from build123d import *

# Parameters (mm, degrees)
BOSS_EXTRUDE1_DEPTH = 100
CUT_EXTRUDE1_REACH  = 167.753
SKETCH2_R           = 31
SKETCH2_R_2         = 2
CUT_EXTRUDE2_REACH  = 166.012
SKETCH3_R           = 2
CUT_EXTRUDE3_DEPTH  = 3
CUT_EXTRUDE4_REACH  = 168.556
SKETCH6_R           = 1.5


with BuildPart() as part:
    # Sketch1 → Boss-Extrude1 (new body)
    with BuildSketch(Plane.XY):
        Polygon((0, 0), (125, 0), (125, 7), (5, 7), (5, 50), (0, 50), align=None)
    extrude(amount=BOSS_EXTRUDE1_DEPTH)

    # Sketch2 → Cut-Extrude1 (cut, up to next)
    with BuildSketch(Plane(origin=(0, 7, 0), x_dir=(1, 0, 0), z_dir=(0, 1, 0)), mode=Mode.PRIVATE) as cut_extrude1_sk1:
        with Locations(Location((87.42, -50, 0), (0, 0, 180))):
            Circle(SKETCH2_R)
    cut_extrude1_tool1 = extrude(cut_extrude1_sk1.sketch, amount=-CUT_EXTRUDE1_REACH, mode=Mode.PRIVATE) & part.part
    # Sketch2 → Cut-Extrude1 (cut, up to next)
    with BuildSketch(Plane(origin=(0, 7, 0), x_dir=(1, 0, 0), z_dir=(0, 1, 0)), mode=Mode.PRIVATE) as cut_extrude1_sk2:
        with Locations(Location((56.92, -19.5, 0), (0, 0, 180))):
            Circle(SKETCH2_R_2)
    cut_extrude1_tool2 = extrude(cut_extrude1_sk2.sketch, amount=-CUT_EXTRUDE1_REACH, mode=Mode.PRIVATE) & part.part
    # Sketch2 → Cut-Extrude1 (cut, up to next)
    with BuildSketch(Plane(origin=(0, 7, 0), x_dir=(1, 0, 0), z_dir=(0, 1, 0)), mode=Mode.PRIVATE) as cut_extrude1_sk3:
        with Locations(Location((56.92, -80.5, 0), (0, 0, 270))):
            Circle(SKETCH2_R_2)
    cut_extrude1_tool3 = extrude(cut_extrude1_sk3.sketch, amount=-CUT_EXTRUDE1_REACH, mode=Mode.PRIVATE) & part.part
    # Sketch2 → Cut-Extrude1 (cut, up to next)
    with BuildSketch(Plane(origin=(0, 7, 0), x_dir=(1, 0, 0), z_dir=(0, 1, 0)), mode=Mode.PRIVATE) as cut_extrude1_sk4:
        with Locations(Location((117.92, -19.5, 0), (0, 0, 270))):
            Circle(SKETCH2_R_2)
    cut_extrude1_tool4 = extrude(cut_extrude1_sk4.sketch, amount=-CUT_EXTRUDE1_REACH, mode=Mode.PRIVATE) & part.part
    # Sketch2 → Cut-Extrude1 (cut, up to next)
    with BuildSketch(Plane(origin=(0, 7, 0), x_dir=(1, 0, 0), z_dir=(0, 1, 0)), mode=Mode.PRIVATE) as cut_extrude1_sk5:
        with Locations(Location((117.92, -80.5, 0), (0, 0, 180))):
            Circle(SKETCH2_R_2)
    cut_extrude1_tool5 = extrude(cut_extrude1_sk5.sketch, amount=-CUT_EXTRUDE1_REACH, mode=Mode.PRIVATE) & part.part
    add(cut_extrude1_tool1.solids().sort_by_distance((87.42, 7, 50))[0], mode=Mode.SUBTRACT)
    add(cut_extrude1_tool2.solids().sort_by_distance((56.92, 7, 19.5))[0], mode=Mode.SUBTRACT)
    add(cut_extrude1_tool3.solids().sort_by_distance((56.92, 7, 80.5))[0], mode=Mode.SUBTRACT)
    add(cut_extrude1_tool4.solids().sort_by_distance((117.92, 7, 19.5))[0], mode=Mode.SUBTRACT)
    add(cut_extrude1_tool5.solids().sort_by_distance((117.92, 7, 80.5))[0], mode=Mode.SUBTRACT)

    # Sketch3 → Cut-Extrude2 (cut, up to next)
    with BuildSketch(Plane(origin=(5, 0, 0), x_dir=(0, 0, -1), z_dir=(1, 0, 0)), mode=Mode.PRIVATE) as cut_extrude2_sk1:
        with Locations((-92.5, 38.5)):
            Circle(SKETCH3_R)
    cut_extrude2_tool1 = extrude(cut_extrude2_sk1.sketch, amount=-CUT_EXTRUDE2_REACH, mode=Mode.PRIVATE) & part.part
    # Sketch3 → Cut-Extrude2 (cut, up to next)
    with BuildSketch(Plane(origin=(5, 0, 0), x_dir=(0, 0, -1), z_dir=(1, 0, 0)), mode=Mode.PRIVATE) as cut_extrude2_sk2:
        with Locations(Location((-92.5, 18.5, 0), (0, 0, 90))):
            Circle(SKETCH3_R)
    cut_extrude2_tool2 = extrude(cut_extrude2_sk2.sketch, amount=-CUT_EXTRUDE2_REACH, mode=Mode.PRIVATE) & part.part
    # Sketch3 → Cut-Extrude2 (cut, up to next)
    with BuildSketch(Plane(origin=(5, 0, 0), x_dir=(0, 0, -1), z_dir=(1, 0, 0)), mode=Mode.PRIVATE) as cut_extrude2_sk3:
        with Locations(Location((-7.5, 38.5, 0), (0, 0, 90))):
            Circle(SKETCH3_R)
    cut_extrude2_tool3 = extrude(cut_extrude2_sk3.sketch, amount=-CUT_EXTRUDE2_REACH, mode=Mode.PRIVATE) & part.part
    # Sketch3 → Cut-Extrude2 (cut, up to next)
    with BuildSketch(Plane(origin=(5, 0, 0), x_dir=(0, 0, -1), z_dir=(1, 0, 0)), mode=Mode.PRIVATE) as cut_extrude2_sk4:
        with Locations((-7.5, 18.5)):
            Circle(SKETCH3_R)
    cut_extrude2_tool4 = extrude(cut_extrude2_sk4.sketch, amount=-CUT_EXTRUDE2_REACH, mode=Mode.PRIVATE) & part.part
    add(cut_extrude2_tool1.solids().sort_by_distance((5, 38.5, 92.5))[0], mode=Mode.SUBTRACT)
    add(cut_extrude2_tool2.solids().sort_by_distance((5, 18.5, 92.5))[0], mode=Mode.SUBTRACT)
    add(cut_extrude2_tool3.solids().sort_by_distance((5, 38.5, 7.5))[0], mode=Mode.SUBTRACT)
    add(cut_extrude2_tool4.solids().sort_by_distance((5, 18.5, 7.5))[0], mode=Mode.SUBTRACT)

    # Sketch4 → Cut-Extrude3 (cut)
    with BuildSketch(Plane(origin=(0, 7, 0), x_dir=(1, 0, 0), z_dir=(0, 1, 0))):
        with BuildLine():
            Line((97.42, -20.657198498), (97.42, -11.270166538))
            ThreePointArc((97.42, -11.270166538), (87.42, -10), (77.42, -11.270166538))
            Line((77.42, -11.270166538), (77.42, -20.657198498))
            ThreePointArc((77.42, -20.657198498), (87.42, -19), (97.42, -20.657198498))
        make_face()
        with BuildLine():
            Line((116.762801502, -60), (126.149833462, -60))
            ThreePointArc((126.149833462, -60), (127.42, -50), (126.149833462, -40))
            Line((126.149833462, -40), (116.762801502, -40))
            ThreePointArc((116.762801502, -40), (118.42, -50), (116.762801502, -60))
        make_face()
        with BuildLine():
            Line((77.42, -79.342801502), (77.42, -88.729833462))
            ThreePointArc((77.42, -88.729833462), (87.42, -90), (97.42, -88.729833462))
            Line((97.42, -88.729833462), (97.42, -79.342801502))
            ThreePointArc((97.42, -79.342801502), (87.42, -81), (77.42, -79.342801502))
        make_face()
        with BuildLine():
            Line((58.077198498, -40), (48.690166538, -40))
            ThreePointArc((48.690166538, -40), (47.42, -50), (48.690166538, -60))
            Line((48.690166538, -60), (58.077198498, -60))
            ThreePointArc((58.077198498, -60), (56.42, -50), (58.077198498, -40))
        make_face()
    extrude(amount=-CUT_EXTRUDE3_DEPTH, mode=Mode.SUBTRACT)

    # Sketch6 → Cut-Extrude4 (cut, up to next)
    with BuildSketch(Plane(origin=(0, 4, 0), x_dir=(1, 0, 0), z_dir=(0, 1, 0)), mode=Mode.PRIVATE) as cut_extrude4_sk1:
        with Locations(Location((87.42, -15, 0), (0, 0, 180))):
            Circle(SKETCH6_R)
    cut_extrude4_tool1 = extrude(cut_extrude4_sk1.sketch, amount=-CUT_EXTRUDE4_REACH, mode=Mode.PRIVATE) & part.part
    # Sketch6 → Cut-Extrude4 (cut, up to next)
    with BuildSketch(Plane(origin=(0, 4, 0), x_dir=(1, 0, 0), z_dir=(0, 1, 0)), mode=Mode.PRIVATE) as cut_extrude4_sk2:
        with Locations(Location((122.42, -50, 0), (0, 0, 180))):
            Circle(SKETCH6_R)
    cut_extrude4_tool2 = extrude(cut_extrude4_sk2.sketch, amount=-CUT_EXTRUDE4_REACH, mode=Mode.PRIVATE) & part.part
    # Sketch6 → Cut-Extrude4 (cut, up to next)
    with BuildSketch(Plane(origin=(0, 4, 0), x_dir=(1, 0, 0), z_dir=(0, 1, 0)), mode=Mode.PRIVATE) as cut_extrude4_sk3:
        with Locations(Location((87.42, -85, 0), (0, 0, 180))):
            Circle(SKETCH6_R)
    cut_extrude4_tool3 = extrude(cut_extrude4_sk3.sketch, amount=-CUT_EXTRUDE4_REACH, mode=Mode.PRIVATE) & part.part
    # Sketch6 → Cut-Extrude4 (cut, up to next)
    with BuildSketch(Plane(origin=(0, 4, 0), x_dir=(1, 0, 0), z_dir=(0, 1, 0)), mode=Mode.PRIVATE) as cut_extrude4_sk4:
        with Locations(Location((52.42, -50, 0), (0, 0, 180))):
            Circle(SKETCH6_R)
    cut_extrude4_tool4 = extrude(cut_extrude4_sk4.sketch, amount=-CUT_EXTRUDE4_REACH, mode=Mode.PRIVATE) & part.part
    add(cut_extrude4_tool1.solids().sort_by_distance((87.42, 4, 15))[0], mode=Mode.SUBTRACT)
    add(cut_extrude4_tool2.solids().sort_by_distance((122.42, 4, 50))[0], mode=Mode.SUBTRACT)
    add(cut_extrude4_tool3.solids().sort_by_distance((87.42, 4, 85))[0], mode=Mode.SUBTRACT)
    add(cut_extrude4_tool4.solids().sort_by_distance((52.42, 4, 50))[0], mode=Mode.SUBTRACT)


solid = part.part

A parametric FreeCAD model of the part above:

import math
import FreeCAD as App
import Part
import Sketcher
from FreeCAD import Vector
Q = App.Units.Quantity

doc = App.newDocument("Part")
body = doc.addObject("PartDesign::Body", "Body")

sketch1 = doc.addObject("Sketcher::SketchObject", "Sketch")
body.addObject(sketch1)
sketch1.AttachmentSupport = (doc.XY_Plane, [""])
sketch1.MapMode = "FlatFace"
sketch1.addGeometry([
    Part.LineSegment(Vector(0, 0, 0), Vector(125, 0, 0)),
    Part.LineSegment(Vector(125, 0, 0), Vector(125, 7, 0)),
    Part.LineSegment(Vector(125, 7, 0), Vector(5, 7, 0)),
    Part.LineSegment(Vector(5, 7, 0), Vector(5, 50, 0)),
    Part.LineSegment(Vector(5, 50, 0), Vector(0, 50, 0)),
    Part.LineSegment(Vector(0, 50, 0), Vector(0, 0, 0)),
], False)
sketch1.addConstraint([
    Sketcher.Constraint("Coincident", 0, 2, 1, 1),
    Sketcher.Constraint("Coincident", 1, 2, 2, 1),
    Sketcher.Constraint("Coincident", 2, 2, 3, 1),
    Sketcher.Constraint("Coincident", 3, 2, 4, 1),
    Sketcher.Constraint("Coincident", 4, 2, 5, 1),
    Sketcher.Constraint("Coincident", 5, 2, 0, 1),
    Sketcher.Constraint("Horizontal", 0),
    Sketcher.Constraint("Vertical", 1),
    Sketcher.Constraint("Horizontal", 2),
    Sketcher.Constraint("Vertical", 3),
    Sketcher.Constraint("Horizontal", 4),
    Sketcher.Constraint("Vertical", 5),
    Sketcher.Constraint("Coincident", 5, 2, -1, 1),
    Sketcher.Constraint("DistanceX", 0, 1, 0, 2, Q("125 mm")),
    Sketcher.Constraint("DistanceX", 2, 2, 2, 1, Q("120 mm")),
    Sketcher.Constraint("DistanceY", 1, 1, 1, 2, Q("7 mm")),
    Sketcher.Constraint("DistanceY", 3, 1, 3, 2, Q("43 mm")),
])
pad1 = doc.addObject("PartDesign::Pad", "Pad")
body.addObject(pad1)
pad1.Profile = sketch1
pad1.Length = 100

sketch2 = doc.addObject("Sketcher::SketchObject", "Sketch001")
body.addObject(sketch2)
sketch2.AttachmentSupport = (doc.XZ_Plane, [""])
sketch2.MapMode = "FlatFace"
sketch2.AttachmentOffset = App.Placement(Vector(0, 0, -7), App.Rotation())
sketch2.addGeometry(Part.Circle(Vector(87.42, 50, 0), Vector(0, 0, 1), 31), False)
sketch2.addConstraint([
    Sketcher.Constraint("Diameter", 0, Q("62 mm")),
    Sketcher.Constraint("DistanceY", -1, 1, 0, 3, Q("50 mm")),
    Sketcher.Constraint("DistanceX", -1, 1, 0, 3, Q("87.42 mm")),
])
pocket1 = doc.addObject("PartDesign::Pocket", "Pocket")
body.addObject(pocket1)
pocket1.Profile = sketch2
pocket1.Type = "UpToFirst"
pocket1.Reversed = True

sketch3 = doc.addObject("Sketcher::SketchObject", "Sketch002")
body.addObject(sketch3)
sketch3.AttachmentSupport = (doc.XZ_Plane, [""])
sketch3.MapMode = "FlatFace"
sketch3.AttachmentOffset = App.Placement(Vector(0, 0, -7), App.Rotation())
sketch3.addGeometry(Part.Circle(Vector(56.92, 19.5, 0), Vector(0, 0, 1), 2), False)
sketch3.addConstraint([
    Sketcher.Constraint("Diameter", 0, Q("4 mm")),
    Sketcher.Constraint("DistanceY", -1, 1, 0, 3, Q("19.5 mm")),
    Sketcher.Constraint("DistanceX", -1, 1, 0, 3, Q("56.92 mm")),
])
pocket2 = doc.addObject("PartDesign::Pocket", "Pocket001")
body.addObject(pocket2)
pocket2.Profile = sketch3
pocket2.Type = "UpToFirst"
pocket2.Reversed = True

sketch4 = doc.addObject("Sketcher::SketchObject", "Sketch003")
body.addObject(sketch4)
sketch4.AttachmentSupport = (doc.XZ_Plane, [""])
sketch4.MapMode = "FlatFace"
sketch4.AttachmentOffset = App.Placement(Vector(0, 0, -7), App.Rotation())
sketch4.addGeometry(Part.Circle(Vector(56.92, 80.5, 0), Vector(0, 0, 1), 2), False)
sketch4.addConstraint([
    Sketcher.Constraint("Diameter", 0, Q("4 mm")),
    Sketcher.Constraint("DistanceY", -1, 1, 0, 3, Q("80.5 mm")),
    Sketcher.Constraint("DistanceX", -1, 1, 0, 3, Q("56.92 mm")),
])
pocket3 = doc.addObject("PartDesign::Pocket", "Pocket002")
body.addObject(pocket3)
pocket3.Profile = sketch4
pocket3.Type = "UpToFirst"
pocket3.Reversed = True

sketch5 = doc.addObject("Sketcher::SketchObject", "Sketch004")
body.addObject(sketch5)
sketch5.AttachmentSupport = (doc.XZ_Plane, [""])
sketch5.MapMode = "FlatFace"
sketch5.AttachmentOffset = App.Placement(Vector(0, 0, -7), App.Rotation())
sketch5.addGeometry(Part.Circle(Vector(117.92, 19.5, 0), Vector(0, 0, 1), 2), False)
sketch5.addConstraint([
    Sketcher.Constraint("Diameter", 0, Q("4 mm")),
    Sketcher.Constraint("DistanceY", -1, 1, 0, 3, Q("19.5 mm")),
    Sketcher.Constraint("DistanceX", -1, 1, 0, 3, Q("117.92 mm")),
])
pocket4 = doc.addObject("PartDesign::Pocket", "Pocket003")
body.addObject(pocket4)
pocket4.Profile = sketch5
pocket4.Type = "UpToFirst"
pocket4.Reversed = True

sketch6 = doc.addObject("Sketcher::SketchObject", "Sketch005")
body.addObject(sketch6)
sketch6.AttachmentSupport = (doc.XZ_Plane, [""])
sketch6.MapMode = "FlatFace"
sketch6.AttachmentOffset = App.Placement(Vector(0, 0, -7), App.Rotation())
sketch6.addGeometry(Part.Circle(Vector(117.92, 80.5, 0), Vector(0, 0, 1), 2), False)
sketch6.addConstraint([
    Sketcher.Constraint("Diameter", 0, Q("4 mm")),
    Sketcher.Constraint("DistanceY", -1, 1, 0, 3, Q("80.5 mm")),
    Sketcher.Constraint("DistanceX", -1, 1, 0, 3, Q("117.92 mm")),
])
pocket5 = doc.addObject("PartDesign::Pocket", "Pocket004")
body.addObject(pocket5)
pocket5.Profile = sketch6
pocket5.Type = "UpToFirst"
pocket5.Reversed = True

sketch7 = doc.addObject("Sketcher::SketchObject", "Sketch006")
body.addObject(sketch7)
sketch7.AttachmentSupport = (doc.YZ_Plane, [""])
sketch7.MapMode = "FlatFace"
sketch7.AttachmentOffset = App.Placement(Vector(0, 0, 5), App.Rotation())
sketch7.addGeometry(Part.Circle(Vector(38.5, 92.5, 0), Vector(0, 0, 1), 2), False)
sketch7.addConstraint([
    Sketcher.Constraint("Diameter", 0, Q("4 mm")),
    Sketcher.Constraint("DistanceX", -1, 1, 0, 3, Q("38.5 mm")),
    Sketcher.Constraint("DistanceY", -1, 1, 0, 3, Q("92.5 mm")),
])
pocket6 = doc.addObject("PartDesign::Pocket", "Pocket005")
body.addObject(pocket6)
pocket6.Profile = sketch7
pocket6.Type = "UpToFirst"

sketch8 = doc.addObject("Sketcher::SketchObject", "Sketch007")
body.addObject(sketch8)
sketch8.AttachmentSupport = (doc.YZ_Plane, [""])
sketch8.MapMode = "FlatFace"
sketch8.AttachmentOffset = App.Placement(Vector(0, 0, 5), App.Rotation())
sketch8.addGeometry(Part.Circle(Vector(18.5, 92.5, 0), Vector(0, 0, 1), 2), False)
sketch8.addConstraint([
    Sketcher.Constraint("Diameter", 0, Q("4 mm")),
    Sketcher.Constraint("DistanceX", -1, 1, 0, 3, Q("18.5 mm")),
    Sketcher.Constraint("DistanceY", -1, 1, 0, 3, Q("92.5 mm")),
])
pocket7 = doc.addObject("PartDesign::Pocket", "Pocket006")
body.addObject(pocket7)
pocket7.Profile = sketch8
pocket7.Type = "UpToFirst"

sketch9 = doc.addObject("Sketcher::SketchObject", "Sketch008")
body.addObject(sketch9)
sketch9.AttachmentSupport = (doc.YZ_Plane, [""])
sketch9.MapMode = "FlatFace"
sketch9.AttachmentOffset = App.Placement(Vector(0, 0, 5), App.Rotation())
sketch9.addGeometry(Part.Circle(Vector(38.5, 7.5, 0), Vector(0, 0, 1), 2), False)
sketch9.addConstraint([
    Sketcher.Constraint("Diameter", 0, Q("4 mm")),
    Sketcher.Constraint("DistanceX", -1, 1, 0, 3, Q("38.5 mm")),
    Sketcher.Constraint("DistanceY", -1, 1, 0, 3, Q("7.5 mm")),
])
pocket8 = doc.addObject("PartDesign::Pocket", "Pocket007")
body.addObject(pocket8)
pocket8.Profile = sketch9
pocket8.Type = "UpToFirst"

sketch10 = doc.addObject("Sketcher::SketchObject", "Sketch009")
body.addObject(sketch10)
sketch10.AttachmentSupport = (doc.YZ_Plane, [""])
sketch10.MapMode = "FlatFace"
sketch10.AttachmentOffset = App.Placement(Vector(0, 0, 5), App.Rotation())
sketch10.addGeometry(Part.Circle(Vector(18.5, 7.5, 0), Vector(0, 0, 1), 2), False)
sketch10.addConstraint([
    Sketcher.Constraint("Diameter", 0, Q("4 mm")),
    Sketcher.Constraint("DistanceX", -1, 1, 0, 3, Q("18.5 mm")),
    Sketcher.Constraint("DistanceY", -1, 1, 0, 3, Q("7.5 mm")),
])
pocket9 = doc.addObject("PartDesign::Pocket", "Pocket008")
body.addObject(pocket9)
pocket9.Profile = sketch10
pocket9.Type = "UpToFirst"

sketch11 = doc.addObject("Sketcher::SketchObject", "Sketch010")
body.addObject(sketch11)
sketch11.AttachmentSupport = (doc.XZ_Plane, [""])
sketch11.MapMode = "FlatFace"
sketch11.AttachmentOffset = App.Placement(Vector(0, 0, -7), App.Rotation())
sketch11.addGeometry([
    Part.LineSegment(Vector(97.42, 20.657198, 0), Vector(97.42, 11.270167, 0)),
    Part.ArcOfCircle(Part.Circle(Vector(87.42, 50, 0), Vector(0, 0, 1), 40), math.radians(-104.477512), math.radians(-75.522488)),
    Part.LineSegment(Vector(77.42, 11.270167, 0), Vector(77.42, 20.657198, 0)),
    Part.ArcOfCircle(Part.Circle(Vector(87.42, 50, 0), Vector(0, 0, 1), 31), math.radians(-108.819063), math.radians(-71.180937)),
    Part.LineSegment(Vector(116.762802, 60, 0), Vector(126.149833, 60, 0)),
    Part.ArcOfCircle(Part.Circle(Vector(87.42, 50, 0), Vector(0, 0, 1), 40), math.radians(-14.477512), math.radians(14.477512)),
    Part.LineSegment(Vector(126.149833, 40, 0), Vector(116.762802, 40, 0)),
    Part.ArcOfCircle(Part.Circle(Vector(87.42, 50, 0), Vector(0, 0, 1), 31), math.radians(-18.819063), math.radians(18.819063)),
    Part.LineSegment(Vector(77.42, 79.342802, 0), Vector(77.42, 88.729833, 0)),
    Part.ArcOfCircle(Part.Circle(Vector(87.42, 50, 0), Vector(0, 0, 1), 40), math.radians(75.522488), math.radians(104.477512)),
    Part.LineSegment(Vector(97.42, 88.729833, 0), Vector(97.42, 79.342802, 0)),
    Part.ArcOfCircle(Part.Circle(Vector(87.42, 50, 0), Vector(0, 0, 1), 31), math.radians(71.180937), math.radians(108.819063)),
    Part.LineSegment(Vector(58.077198, 40, 0), Vector(48.690167, 40, 0)),
    Part.ArcOfCircle(Part.Circle(Vector(87.42, 50, 0), Vector(0, 0, 1), 40), math.radians(165.522488), math.radians(194.477512)),
    Part.LineSegment(Vector(48.690167, 60, 0), Vector(58.077198, 60, 0)),
    Part.ArcOfCircle(Part.Circle(Vector(87.42, 50, 0), Vector(0, 0, 1), 31), math.radians(161.180937), math.radians(198.819063)),
], False)
sketch11.addConstraint([
    Sketcher.Constraint("Coincident", 0, 2, 1, 2),
    Sketcher.Constraint("Coincident", 1, 1, 2, 1),
    Sketcher.Constraint("Coincident", 2, 2, 3, 1),
    Sketcher.Constraint("Coincident", 3, 2, 0, 1),
    Sketcher.Constraint("Coincident", 4, 2, 5, 2),
    Sketcher.Constraint("Coincident", 5, 1, 6, 1),
    Sketcher.Constraint("Coincident", 6, 2, 7, 1),
    Sketcher.Constraint("Coincident", 7, 2, 4, 1),
    Sketcher.Constraint("Coincident", 8, 2, 9, 2),
    Sketcher.Constraint("Coincident", 9, 1, 10, 1),
    Sketcher.Constraint("Coincident", 10, 2, 11, 1),
    Sketcher.Constraint("Coincident", 11, 2, 8, 1),
    Sketcher.Constraint("Coincident", 12, 2, 13, 2),
    Sketcher.Constraint("Coincident", 13, 1, 14, 1),
    Sketcher.Constraint("Coincident", 14, 2, 15, 1),
    Sketcher.Constraint("Coincident", 15, 2, 12, 1),
    Sketcher.Constraint("Vertical", 0),
    Sketcher.Constraint("Vertical", 2),
    Sketcher.Constraint("Horizontal", 4),
    Sketcher.Constraint("Horizontal", 6),
    Sketcher.Constraint("Vertical", 8),
    Sketcher.Constraint("Vertical", 10),
    Sketcher.Constraint("Horizontal", 12),
    Sketcher.Constraint("Horizontal", 14),
    Sketcher.Constraint("Coincident", 3, 3, 1, 3),
    Sketcher.Constraint("Coincident", 5, 3, 1, 3),
    Sketcher.Constraint("Coincident", 7, 3, 1, 3),
    Sketcher.Constraint("Coincident", 9, 3, 1, 3),
    Sketcher.Constraint("Coincident", 11, 3, 1, 3),
    Sketcher.Constraint("Coincident", 13, 3, 1, 3),
    Sketcher.Constraint("Coincident", 15, 3, 1, 3),
    Sketcher.Constraint("Equal", 1, 5),
    Sketcher.Constraint("Equal", 3, 7),
    Sketcher.Constraint("Equal", 5, 9),
    Sketcher.Constraint("Equal", 7, 11),
    Sketcher.Constraint("Equal", 9, 13),
    Sketcher.Constraint("Equal", 11, 15),
    Sketcher.Constraint("Horizontal", 0, 2, 1, 1),
    Sketcher.Constraint("Horizontal", 8, 2, 9, 1),
    Sketcher.Constraint("Horizontal", 6, 2, 12, 2),
    Sketcher.Constraint("Horizontal", 7, 2, 13, 1),
    Sketcher.Constraint("Vertical", 4, 2, 5, 1),
    Sketcher.Constraint("Vertical", 2, 2, 8, 2),
    Sketcher.Constraint("Equal", 14, 0),
    Sketcher.Constraint("Radius", 1, Q("40 mm")),
    Sketcher.Constraint("Radius", 3, Q("31 mm")),
    Sketcher.Constraint("DistanceY", -1, 1, 1, 3, Q("50 mm")),
    Sketcher.Constraint("DistanceY", -1, 1, 4, 2, Q("60 mm")),
    Sketcher.Constraint("DistanceX", -1, 1, 1, 3, Q("87.42 mm")),
])
pocket10 = doc.addObject("PartDesign::Pocket", "Pocket009")
body.addObject(pocket10)
pocket10.Profile = sketch11
pocket10.Length = 3
pocket10.Reversed = True

sketch12 = doc.addObject("Sketcher::SketchObject", "Sketch011")
body.addObject(sketch12)
sketch12.AttachmentSupport = (doc.XZ_Plane, [""])
sketch12.MapMode = "FlatFace"
sketch12.AttachmentOffset = App.Placement(Vector(0, 0, -4), App.Rotation())
sketch12.addGeometry(Part.Circle(Vector(87.42, 15, 0), Vector(0, 0, 1), 1.5), False)
sketch12.addConstraint([
    Sketcher.Constraint("Diameter", 0, Q("3 mm")),
    Sketcher.Constraint("DistanceY", -1, 1, 0, 3, Q("15 mm")),
    Sketcher.Constraint("DistanceX", -1, 1, 0, 3, Q("87.42 mm")),
])
pocket11 = doc.addObject("PartDesign::Pocket", "Pocket010")
body.addObject(pocket11)
pocket11.Profile = sketch12
pocket11.Type = "UpToFirst"
pocket11.Reversed = True

sketch13 = doc.addObject("Sketcher::SketchObject", "Sketch012")
body.addObject(sketch13)
sketch13.AttachmentSupport = (doc.XZ_Plane, [""])
sketch13.MapMode = "FlatFace"
sketch13.AttachmentOffset = App.Placement(Vector(0, 0, -4), App.Rotation())
sketch13.addGeometry(Part.Circle(Vector(122.42, 50, 0), Vector(0, 0, 1), 1.5), False)
sketch13.addConstraint([
    Sketcher.Constraint("Diameter", 0, Q("3 mm")),
    Sketcher.Constraint("DistanceY", -1, 1, 0, 3, Q("50 mm")),
    Sketcher.Constraint("DistanceX", -1, 1, 0, 3, Q("122.42 mm")),
])
pocket12 = doc.addObject("PartDesign::Pocket", "Pocket011")
body.addObject(pocket12)
pocket12.Profile = sketch13
pocket12.Type = "UpToFirst"
pocket12.Reversed = True

sketch14 = doc.addObject("Sketcher::SketchObject", "Sketch013")
body.addObject(sketch14)
sketch14.AttachmentSupport = (doc.XZ_Plane, [""])
sketch14.MapMode = "FlatFace"
sketch14.AttachmentOffset = App.Placement(Vector(0, 0, -4), App.Rotation())
sketch14.addGeometry(Part.Circle(Vector(87.42, 85, 0), Vector(0, 0, 1), 1.5), False)
sketch14.addConstraint([
    Sketcher.Constraint("Diameter", 0, Q("3 mm")),
    Sketcher.Constraint("DistanceY", -1, 1, 0, 3, Q("85 mm")),
    Sketcher.Constraint("DistanceX", -1, 1, 0, 3, Q("87.42 mm")),
])
pocket13 = doc.addObject("PartDesign::Pocket", "Pocket012")
body.addObject(pocket13)
pocket13.Profile = sketch14
pocket13.Type = "UpToFirst"
pocket13.Reversed = True

sketch15 = doc.addObject("Sketcher::SketchObject", "Sketch014")
body.addObject(sketch15)
sketch15.AttachmentSupport = (doc.XZ_Plane, [""])
sketch15.MapMode = "FlatFace"
sketch15.AttachmentOffset = App.Placement(Vector(0, 0, -4), App.Rotation())
sketch15.addGeometry(Part.Circle(Vector(52.42, 50, 0), Vector(0, 0, 1), 1.5), False)
sketch15.addConstraint([
    Sketcher.Constraint("Diameter", 0, Q("3 mm")),
    Sketcher.Constraint("DistanceY", -1, 1, 0, 3, Q("50 mm")),
    Sketcher.Constraint("DistanceX", -1, 1, 0, 3, Q("52.42 mm")),
])
pocket14 = doc.addObject("PartDesign::Pocket", "Pocket013")
body.addObject(pocket14)
pocket14.Profile = sketch15
pocket14.Type = "UpToFirst"
pocket14.Reversed = True

doc.recompute()
